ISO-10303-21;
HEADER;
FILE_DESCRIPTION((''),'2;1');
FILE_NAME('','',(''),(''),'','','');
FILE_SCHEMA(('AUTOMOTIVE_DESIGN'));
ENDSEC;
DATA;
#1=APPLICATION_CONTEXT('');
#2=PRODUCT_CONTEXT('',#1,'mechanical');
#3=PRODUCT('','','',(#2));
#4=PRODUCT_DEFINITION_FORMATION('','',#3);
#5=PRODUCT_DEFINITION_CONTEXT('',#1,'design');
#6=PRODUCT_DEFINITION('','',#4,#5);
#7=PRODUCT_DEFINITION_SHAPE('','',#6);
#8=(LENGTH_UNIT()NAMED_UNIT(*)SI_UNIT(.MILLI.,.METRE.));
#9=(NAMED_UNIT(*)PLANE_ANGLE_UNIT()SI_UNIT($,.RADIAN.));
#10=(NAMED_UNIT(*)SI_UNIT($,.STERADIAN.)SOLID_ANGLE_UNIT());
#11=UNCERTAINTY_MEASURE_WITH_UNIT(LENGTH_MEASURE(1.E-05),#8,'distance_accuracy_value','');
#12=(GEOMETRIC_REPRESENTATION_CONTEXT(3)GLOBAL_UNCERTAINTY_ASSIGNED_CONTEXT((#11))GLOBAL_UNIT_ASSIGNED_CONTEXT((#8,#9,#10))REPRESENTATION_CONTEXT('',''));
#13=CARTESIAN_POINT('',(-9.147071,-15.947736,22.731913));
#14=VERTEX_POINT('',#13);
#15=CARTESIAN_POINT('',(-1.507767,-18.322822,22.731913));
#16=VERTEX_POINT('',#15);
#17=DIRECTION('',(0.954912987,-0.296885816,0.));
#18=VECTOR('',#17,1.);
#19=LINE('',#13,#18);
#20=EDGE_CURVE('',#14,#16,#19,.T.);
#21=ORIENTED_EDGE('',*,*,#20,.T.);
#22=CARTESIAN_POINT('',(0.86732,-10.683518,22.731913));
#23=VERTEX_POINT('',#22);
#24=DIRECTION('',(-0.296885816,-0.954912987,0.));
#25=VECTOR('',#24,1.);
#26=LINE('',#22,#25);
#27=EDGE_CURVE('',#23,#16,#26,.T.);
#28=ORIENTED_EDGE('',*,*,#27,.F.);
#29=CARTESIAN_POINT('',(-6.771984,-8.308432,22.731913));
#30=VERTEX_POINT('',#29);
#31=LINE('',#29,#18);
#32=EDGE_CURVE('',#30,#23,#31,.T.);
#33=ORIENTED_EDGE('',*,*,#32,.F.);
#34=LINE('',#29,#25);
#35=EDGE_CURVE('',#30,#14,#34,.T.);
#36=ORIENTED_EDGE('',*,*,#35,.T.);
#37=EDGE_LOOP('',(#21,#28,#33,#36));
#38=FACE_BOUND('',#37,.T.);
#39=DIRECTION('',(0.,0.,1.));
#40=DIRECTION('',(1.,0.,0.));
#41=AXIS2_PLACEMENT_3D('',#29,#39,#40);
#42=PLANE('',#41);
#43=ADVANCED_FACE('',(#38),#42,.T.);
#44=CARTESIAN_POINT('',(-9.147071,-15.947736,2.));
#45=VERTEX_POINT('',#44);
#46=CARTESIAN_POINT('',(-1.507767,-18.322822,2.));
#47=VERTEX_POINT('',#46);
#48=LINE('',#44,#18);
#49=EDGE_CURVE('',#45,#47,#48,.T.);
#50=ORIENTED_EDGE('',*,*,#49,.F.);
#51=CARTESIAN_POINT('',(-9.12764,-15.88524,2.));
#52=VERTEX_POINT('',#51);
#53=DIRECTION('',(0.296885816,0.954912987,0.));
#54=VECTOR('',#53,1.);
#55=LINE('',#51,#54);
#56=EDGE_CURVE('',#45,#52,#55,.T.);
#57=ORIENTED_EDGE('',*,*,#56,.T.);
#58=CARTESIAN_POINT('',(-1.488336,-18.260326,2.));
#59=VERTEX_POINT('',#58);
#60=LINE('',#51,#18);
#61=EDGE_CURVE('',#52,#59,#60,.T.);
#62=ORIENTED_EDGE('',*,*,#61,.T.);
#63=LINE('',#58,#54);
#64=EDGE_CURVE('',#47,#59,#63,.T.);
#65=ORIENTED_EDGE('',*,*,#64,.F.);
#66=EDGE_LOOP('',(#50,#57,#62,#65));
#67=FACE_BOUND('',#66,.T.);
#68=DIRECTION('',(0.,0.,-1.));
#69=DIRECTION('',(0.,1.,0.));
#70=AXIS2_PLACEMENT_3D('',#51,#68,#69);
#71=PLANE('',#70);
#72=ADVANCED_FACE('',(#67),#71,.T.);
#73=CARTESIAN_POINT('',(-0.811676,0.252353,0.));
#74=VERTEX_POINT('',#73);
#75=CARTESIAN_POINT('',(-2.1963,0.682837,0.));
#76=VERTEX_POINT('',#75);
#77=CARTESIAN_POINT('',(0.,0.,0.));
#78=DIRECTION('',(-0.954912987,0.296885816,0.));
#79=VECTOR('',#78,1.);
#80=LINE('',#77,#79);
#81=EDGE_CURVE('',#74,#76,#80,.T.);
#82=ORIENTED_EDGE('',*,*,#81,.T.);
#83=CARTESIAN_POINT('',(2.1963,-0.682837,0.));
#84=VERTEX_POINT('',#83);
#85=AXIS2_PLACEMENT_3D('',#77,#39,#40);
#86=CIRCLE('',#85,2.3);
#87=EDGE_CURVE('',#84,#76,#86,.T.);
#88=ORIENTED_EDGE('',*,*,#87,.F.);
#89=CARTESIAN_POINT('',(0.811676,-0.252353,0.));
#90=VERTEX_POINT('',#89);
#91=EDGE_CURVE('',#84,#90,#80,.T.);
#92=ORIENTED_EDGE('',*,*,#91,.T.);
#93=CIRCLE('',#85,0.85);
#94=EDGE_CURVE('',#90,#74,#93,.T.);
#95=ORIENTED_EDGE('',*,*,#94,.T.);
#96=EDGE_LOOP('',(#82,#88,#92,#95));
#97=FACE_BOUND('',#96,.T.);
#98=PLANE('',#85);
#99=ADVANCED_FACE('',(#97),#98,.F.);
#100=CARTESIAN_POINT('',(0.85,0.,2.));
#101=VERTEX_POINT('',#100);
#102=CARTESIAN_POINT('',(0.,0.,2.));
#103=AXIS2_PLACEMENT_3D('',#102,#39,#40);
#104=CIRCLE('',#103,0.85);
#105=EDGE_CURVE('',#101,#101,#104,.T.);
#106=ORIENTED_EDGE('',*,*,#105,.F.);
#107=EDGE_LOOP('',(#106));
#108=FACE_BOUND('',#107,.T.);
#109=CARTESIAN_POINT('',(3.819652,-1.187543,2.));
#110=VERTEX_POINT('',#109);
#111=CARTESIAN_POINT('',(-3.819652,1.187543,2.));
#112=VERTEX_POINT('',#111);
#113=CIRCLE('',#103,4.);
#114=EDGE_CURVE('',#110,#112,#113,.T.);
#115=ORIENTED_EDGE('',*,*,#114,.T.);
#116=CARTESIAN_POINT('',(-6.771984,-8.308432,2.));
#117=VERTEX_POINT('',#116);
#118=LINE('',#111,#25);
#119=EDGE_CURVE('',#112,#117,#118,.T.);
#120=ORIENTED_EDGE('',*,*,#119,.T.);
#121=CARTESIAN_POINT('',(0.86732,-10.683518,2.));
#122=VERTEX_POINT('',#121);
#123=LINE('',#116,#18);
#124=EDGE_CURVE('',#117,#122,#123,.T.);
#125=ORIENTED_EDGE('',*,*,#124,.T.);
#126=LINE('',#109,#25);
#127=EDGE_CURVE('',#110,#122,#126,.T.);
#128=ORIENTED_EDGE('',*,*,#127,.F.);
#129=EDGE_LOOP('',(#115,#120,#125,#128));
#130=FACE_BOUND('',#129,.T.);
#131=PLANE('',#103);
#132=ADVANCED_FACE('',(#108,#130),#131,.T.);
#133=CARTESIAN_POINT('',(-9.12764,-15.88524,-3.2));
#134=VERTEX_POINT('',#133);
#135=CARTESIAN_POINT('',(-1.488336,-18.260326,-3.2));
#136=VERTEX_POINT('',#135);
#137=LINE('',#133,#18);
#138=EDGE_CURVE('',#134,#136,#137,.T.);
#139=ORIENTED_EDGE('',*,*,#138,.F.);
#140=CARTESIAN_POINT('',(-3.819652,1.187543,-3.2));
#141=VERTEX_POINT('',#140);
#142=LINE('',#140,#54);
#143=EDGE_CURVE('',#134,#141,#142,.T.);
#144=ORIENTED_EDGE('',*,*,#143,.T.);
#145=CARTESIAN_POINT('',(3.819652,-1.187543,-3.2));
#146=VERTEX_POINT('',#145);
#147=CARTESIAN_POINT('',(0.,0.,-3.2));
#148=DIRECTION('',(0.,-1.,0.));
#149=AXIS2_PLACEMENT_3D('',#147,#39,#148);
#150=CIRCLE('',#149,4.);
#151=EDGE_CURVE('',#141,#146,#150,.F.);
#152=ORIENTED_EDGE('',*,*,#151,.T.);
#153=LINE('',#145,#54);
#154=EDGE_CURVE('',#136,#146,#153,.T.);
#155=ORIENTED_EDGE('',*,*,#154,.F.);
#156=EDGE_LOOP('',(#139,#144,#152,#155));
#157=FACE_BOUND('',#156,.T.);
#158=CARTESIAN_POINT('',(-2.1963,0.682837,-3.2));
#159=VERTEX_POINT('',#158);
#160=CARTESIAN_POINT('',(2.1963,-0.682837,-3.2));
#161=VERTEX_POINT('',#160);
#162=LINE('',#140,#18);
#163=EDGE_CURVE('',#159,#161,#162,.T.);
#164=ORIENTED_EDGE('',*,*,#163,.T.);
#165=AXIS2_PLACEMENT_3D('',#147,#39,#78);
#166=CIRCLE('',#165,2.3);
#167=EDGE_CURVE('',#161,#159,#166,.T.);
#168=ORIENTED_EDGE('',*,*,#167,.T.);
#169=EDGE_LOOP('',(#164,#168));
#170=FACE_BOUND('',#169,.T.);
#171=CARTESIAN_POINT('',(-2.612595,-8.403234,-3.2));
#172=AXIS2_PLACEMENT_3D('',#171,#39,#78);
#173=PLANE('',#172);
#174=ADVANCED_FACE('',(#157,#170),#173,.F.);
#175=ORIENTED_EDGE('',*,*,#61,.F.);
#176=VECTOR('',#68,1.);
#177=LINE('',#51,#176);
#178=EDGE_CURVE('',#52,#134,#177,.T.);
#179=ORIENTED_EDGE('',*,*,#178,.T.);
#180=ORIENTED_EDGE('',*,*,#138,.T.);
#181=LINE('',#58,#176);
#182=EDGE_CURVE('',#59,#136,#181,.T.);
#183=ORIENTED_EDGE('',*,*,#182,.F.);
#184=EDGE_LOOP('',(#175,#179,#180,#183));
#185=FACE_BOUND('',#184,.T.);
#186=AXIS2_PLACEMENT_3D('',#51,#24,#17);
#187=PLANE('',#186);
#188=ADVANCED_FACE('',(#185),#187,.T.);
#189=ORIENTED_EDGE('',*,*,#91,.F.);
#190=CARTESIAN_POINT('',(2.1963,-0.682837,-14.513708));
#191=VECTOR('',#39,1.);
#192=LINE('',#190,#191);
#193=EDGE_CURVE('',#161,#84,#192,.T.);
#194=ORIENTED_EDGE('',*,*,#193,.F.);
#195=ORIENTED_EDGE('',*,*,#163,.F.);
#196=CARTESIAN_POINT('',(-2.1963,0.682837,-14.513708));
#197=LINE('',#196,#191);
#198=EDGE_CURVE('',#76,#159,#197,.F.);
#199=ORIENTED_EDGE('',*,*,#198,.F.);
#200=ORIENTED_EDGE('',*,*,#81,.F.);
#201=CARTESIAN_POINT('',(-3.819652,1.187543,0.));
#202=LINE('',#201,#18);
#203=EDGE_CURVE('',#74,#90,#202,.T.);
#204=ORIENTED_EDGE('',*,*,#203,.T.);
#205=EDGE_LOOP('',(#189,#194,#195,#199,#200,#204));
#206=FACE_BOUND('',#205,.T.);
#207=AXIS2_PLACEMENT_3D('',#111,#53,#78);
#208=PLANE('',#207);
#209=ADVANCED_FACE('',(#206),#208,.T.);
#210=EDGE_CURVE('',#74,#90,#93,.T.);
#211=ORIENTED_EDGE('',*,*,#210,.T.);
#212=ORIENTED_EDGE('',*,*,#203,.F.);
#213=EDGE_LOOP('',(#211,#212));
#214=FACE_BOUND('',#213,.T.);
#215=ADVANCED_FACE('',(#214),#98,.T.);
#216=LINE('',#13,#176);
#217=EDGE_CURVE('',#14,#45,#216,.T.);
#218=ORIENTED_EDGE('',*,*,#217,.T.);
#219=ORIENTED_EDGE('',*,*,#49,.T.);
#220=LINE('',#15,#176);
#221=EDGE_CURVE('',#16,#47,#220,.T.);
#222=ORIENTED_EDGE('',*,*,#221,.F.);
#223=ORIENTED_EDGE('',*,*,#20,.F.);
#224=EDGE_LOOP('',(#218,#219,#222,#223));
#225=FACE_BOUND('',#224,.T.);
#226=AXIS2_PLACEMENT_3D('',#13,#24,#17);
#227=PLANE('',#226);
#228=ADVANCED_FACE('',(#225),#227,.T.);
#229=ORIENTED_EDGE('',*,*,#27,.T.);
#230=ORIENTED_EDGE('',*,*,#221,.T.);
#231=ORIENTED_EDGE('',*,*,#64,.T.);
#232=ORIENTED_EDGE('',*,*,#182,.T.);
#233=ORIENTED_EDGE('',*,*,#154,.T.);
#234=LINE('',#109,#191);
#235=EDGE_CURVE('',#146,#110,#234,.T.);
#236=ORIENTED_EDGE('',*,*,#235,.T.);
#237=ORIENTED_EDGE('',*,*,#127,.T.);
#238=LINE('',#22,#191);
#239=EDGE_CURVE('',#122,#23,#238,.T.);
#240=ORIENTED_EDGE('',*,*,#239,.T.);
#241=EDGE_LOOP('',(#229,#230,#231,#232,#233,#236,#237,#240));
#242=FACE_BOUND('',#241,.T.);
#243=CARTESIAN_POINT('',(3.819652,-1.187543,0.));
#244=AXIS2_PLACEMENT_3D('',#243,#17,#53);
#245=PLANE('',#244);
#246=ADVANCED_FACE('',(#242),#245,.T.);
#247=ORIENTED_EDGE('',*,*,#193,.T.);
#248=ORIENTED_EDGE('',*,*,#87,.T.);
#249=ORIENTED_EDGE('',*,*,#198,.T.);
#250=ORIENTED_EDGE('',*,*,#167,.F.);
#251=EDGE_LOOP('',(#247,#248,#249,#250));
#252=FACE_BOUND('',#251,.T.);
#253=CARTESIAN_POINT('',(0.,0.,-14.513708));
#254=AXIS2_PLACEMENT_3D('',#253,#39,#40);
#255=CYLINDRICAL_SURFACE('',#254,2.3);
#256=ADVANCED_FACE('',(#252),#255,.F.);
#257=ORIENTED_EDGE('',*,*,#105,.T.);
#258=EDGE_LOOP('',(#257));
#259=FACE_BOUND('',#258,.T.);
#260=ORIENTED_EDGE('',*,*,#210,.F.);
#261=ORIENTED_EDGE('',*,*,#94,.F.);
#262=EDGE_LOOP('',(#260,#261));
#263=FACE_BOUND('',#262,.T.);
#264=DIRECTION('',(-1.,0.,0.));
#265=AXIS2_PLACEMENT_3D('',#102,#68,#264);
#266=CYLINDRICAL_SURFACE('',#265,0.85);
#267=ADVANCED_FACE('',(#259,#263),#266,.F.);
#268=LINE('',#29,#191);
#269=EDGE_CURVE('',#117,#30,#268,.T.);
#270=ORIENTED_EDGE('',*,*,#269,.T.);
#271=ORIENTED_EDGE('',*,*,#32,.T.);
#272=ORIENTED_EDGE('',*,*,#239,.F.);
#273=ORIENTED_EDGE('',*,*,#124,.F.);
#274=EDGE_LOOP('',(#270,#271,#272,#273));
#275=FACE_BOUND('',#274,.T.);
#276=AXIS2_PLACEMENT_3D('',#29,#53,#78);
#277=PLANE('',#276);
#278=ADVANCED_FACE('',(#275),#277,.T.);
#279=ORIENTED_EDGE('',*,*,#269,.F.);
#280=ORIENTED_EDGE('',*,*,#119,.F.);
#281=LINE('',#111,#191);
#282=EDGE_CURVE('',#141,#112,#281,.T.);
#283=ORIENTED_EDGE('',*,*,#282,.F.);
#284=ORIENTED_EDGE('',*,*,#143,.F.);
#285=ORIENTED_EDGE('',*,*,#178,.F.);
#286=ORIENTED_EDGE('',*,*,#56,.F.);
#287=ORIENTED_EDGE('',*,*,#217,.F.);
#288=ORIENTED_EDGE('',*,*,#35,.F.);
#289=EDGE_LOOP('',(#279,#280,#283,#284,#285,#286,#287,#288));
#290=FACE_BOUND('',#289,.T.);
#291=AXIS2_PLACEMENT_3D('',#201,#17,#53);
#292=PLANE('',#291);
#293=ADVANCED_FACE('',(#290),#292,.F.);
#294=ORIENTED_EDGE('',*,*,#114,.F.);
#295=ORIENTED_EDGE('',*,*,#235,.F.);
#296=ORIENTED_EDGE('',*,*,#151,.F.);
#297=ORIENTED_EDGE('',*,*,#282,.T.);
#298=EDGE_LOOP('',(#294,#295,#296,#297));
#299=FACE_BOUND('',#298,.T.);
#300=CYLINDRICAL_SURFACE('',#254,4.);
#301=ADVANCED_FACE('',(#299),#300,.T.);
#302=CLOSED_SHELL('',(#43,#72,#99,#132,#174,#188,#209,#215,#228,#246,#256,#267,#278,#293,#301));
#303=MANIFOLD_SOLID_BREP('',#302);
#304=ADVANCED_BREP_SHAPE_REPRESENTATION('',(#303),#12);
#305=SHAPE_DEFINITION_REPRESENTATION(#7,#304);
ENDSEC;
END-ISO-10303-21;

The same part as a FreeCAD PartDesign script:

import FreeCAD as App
import Part
import Sketcher
from FreeCAD import Vector
Q = App.Units.Quantity

doc = App.newDocument("Part")
body = doc.addObject("PartDesign::Body", "Body")

# Sketch on XY plane
sketch1 = body.newObject("Sketcher::SketchObject", "Sketch")
sketch1.AttachmentSupport = (doc.getObject("XY_Plane"), [""])
sketch1.MapMode = "FlatFace"
sketch1.addGeometry([
    Part.Circle(Vector(0, 0, 0), Vector(0, 0, 1), 4),
    Part.Circle(Vector(0, 0, 0), Vector(0, 0, 1), 2.3),
], False)
sketch1.addConstraint([
    Sketcher.Constraint("Coincident", 0, 3, -1, 1),
    Sketcher.Constraint("Coincident", 1, 3, -1, 1),
    Sketcher.Constraint("Diameter", 0, Q("8 mm")),
    Sketcher.Constraint("Diameter", 1, Q("4.6 mm")),
])
pad1 = body.newObject("PartDesign::Pad", "Pad")
pad1.Profile = sketch1
pad1.Length = 3.2
pad1.Reversed = True

# Sketch on XY plane
sketch2 = body.newObject("Sketcher::SketchObject", "Sketch001")
sketch2.AttachmentSupport = (doc.getObject("XY_Plane"), [""])
sketch2.MapMode = "FlatFace"
sketch2.addGeometry([
    Part.Circle(Vector(0, 0, 0), Vector(0, 0, 1), 4),
    Part.Circle(Vector(0, 0, 0), Vector(0, 0, 1), 0.8),
], False)
sketch2.addConstraint([
    Sketcher.Constraint("Coincident", 0, 3, -1, 1),
    Sketcher.Constraint("Coincident", 1, 3, -1, 1),
    Sketcher.Constraint("Diameter", 0, Q("8 mm")),
    Sketcher.Constraint("Diameter", 1, Q("1.7 mm")),
])
pad2 = body.newObject("PartDesign::Pad", "Pad001")
pad2.Profile = sketch2
pad2.Length = 2

# Sketch on an angled plane
sketch3 = body.newObject("Sketcher::SketchObject", "Sketch002")
sketch3.Placement = App.Placement(Vector(3.819652, -1.187543, 0), App.Rotation(Vector(0, 0, -1), Vector(0.296885816, 0.954912987, 0), Vector(0.954912987, -0.296885816, 0), "ZXY"))
sketch3.addGeometry([
    Part.LineSegment(Vector(3.2, 0, 0), Vector(-2, 0, 0)),  # 0
    Part.LineSegment(Vector(-2, 0, 0), Vector(-2, -9.94, 0)),  # 1
    Part.LineSegment(Vector(-2, -9.94, 0), Vector(-22.73, -9.94, 0)),  # 2
    Part.LineSegment(Vector(-22.73, -9.94, 0), Vector(-22.73, -17.94, 0)),  # 3
    Part.LineSegment(Vector(-22.73, -17.94, 0), Vector(-2, -17.94, 0)),  # 4
    Part.LineSegment(Vector(-2, -17.94, 0), Vector(-2, -17.88, 0)),  # 5
    Part.LineSegment(Vector(-2, -17.88, 0), Vector(3.2, -17.88, 0)),  # 6
    Part.LineSegment(Vector(3.2, -17.88, 0), Vector(3.2, 0, 0)),  # 7
], False)
sketch3.addConstraint([
    Sketcher.Constraint("Coincident", 0, 2, 1, 1),
    Sketcher.Constraint("Coincident", 1, 2, 2, 1),
    Sketcher.Constraint("Coincident", 2, 2, 3, 1),
    Sketcher.Constraint("Coincident", 3, 2, 4, 1),
    Sketcher.Constraint("Coincident", 4, 2, 5, 1),
    Sketcher.Constraint("Coincident", 5, 2, 6, 1),
    Sketcher.Constraint("Coincident", 6, 2, 7, 1),
    Sketcher.Constraint("Coincident", 7, 2, 0, 1),
    Sketcher.Constraint("Horizontal", 0),
    Sketcher.Constraint("Vertical", 1),
    Sketcher.Constraint("Horizontal", 2),
    Sketcher.Constraint("Vertical", 3),
    Sketcher.Constraint("Horizontal", 4),
    Sketcher.Constraint("Vertical", 5),
    Sketcher.Constraint("Horizontal", 6),
    Sketcher.Constraint("Vertical", 7),
    Sketcher.Constraint("PointOnObject", 0, 2, -1),
    Sketcher.Constraint("Vertical", 1, 2, 4, 2),
    Sketcher.Constraint("DistanceY", 3, 2, 3, 1, Q("8 mm")),
    Sketcher.Constraint("DistanceX", 0, 2, 0, 1, Q("5.2 mm")),
    Sketcher.Constraint("DistanceX", 0, 2, -1, 1, Q("2 mm")),
    Sketcher.Constraint("DistanceY", 7, 1, 7, 2, Q("17.878889 mm")),
    Sketcher.Constraint("DistanceX", 2, 2, 2, 1, Q("20.731913 mm")),
    Sketcher.Constraint("DistanceY", 1, 2, 1, 1, Q("9.944336 mm")),
])
pad3 = body.newObject("PartDesign::Pad", "Pad002")
pad3.Profile = sketch3
pad3.Length = 8
pad3.Reversed = True

# Sketch on XY plane
sketch4 = body.newObject("Sketcher::SketchObject", "Sketch003")
sketch4.AttachmentSupport = (doc.getObject("XY_Plane"), [""])
sketch4.MapMode = "FlatFace"
sketch4.AttachmentOffset = App.Placement(Vector(0, 0, 2), App.Rotation())
sketch4.addGeometry(Part.Circle(Vector(0, 0, 0), Vector(0, 0, 1), 0.8), False)
sketch4.addConstraint([
    Sketcher.Constraint("Coincident", 0, 3, -1, 1),
    Sketcher.Constraint("Diameter", 0, Q("1.7 mm")),
])
pocket1 = body.newObject("PartDesign::Pocket", "Pocket")
pocket1.Profile = sketch4
pocket1.Length = 2

doc.recompute()
